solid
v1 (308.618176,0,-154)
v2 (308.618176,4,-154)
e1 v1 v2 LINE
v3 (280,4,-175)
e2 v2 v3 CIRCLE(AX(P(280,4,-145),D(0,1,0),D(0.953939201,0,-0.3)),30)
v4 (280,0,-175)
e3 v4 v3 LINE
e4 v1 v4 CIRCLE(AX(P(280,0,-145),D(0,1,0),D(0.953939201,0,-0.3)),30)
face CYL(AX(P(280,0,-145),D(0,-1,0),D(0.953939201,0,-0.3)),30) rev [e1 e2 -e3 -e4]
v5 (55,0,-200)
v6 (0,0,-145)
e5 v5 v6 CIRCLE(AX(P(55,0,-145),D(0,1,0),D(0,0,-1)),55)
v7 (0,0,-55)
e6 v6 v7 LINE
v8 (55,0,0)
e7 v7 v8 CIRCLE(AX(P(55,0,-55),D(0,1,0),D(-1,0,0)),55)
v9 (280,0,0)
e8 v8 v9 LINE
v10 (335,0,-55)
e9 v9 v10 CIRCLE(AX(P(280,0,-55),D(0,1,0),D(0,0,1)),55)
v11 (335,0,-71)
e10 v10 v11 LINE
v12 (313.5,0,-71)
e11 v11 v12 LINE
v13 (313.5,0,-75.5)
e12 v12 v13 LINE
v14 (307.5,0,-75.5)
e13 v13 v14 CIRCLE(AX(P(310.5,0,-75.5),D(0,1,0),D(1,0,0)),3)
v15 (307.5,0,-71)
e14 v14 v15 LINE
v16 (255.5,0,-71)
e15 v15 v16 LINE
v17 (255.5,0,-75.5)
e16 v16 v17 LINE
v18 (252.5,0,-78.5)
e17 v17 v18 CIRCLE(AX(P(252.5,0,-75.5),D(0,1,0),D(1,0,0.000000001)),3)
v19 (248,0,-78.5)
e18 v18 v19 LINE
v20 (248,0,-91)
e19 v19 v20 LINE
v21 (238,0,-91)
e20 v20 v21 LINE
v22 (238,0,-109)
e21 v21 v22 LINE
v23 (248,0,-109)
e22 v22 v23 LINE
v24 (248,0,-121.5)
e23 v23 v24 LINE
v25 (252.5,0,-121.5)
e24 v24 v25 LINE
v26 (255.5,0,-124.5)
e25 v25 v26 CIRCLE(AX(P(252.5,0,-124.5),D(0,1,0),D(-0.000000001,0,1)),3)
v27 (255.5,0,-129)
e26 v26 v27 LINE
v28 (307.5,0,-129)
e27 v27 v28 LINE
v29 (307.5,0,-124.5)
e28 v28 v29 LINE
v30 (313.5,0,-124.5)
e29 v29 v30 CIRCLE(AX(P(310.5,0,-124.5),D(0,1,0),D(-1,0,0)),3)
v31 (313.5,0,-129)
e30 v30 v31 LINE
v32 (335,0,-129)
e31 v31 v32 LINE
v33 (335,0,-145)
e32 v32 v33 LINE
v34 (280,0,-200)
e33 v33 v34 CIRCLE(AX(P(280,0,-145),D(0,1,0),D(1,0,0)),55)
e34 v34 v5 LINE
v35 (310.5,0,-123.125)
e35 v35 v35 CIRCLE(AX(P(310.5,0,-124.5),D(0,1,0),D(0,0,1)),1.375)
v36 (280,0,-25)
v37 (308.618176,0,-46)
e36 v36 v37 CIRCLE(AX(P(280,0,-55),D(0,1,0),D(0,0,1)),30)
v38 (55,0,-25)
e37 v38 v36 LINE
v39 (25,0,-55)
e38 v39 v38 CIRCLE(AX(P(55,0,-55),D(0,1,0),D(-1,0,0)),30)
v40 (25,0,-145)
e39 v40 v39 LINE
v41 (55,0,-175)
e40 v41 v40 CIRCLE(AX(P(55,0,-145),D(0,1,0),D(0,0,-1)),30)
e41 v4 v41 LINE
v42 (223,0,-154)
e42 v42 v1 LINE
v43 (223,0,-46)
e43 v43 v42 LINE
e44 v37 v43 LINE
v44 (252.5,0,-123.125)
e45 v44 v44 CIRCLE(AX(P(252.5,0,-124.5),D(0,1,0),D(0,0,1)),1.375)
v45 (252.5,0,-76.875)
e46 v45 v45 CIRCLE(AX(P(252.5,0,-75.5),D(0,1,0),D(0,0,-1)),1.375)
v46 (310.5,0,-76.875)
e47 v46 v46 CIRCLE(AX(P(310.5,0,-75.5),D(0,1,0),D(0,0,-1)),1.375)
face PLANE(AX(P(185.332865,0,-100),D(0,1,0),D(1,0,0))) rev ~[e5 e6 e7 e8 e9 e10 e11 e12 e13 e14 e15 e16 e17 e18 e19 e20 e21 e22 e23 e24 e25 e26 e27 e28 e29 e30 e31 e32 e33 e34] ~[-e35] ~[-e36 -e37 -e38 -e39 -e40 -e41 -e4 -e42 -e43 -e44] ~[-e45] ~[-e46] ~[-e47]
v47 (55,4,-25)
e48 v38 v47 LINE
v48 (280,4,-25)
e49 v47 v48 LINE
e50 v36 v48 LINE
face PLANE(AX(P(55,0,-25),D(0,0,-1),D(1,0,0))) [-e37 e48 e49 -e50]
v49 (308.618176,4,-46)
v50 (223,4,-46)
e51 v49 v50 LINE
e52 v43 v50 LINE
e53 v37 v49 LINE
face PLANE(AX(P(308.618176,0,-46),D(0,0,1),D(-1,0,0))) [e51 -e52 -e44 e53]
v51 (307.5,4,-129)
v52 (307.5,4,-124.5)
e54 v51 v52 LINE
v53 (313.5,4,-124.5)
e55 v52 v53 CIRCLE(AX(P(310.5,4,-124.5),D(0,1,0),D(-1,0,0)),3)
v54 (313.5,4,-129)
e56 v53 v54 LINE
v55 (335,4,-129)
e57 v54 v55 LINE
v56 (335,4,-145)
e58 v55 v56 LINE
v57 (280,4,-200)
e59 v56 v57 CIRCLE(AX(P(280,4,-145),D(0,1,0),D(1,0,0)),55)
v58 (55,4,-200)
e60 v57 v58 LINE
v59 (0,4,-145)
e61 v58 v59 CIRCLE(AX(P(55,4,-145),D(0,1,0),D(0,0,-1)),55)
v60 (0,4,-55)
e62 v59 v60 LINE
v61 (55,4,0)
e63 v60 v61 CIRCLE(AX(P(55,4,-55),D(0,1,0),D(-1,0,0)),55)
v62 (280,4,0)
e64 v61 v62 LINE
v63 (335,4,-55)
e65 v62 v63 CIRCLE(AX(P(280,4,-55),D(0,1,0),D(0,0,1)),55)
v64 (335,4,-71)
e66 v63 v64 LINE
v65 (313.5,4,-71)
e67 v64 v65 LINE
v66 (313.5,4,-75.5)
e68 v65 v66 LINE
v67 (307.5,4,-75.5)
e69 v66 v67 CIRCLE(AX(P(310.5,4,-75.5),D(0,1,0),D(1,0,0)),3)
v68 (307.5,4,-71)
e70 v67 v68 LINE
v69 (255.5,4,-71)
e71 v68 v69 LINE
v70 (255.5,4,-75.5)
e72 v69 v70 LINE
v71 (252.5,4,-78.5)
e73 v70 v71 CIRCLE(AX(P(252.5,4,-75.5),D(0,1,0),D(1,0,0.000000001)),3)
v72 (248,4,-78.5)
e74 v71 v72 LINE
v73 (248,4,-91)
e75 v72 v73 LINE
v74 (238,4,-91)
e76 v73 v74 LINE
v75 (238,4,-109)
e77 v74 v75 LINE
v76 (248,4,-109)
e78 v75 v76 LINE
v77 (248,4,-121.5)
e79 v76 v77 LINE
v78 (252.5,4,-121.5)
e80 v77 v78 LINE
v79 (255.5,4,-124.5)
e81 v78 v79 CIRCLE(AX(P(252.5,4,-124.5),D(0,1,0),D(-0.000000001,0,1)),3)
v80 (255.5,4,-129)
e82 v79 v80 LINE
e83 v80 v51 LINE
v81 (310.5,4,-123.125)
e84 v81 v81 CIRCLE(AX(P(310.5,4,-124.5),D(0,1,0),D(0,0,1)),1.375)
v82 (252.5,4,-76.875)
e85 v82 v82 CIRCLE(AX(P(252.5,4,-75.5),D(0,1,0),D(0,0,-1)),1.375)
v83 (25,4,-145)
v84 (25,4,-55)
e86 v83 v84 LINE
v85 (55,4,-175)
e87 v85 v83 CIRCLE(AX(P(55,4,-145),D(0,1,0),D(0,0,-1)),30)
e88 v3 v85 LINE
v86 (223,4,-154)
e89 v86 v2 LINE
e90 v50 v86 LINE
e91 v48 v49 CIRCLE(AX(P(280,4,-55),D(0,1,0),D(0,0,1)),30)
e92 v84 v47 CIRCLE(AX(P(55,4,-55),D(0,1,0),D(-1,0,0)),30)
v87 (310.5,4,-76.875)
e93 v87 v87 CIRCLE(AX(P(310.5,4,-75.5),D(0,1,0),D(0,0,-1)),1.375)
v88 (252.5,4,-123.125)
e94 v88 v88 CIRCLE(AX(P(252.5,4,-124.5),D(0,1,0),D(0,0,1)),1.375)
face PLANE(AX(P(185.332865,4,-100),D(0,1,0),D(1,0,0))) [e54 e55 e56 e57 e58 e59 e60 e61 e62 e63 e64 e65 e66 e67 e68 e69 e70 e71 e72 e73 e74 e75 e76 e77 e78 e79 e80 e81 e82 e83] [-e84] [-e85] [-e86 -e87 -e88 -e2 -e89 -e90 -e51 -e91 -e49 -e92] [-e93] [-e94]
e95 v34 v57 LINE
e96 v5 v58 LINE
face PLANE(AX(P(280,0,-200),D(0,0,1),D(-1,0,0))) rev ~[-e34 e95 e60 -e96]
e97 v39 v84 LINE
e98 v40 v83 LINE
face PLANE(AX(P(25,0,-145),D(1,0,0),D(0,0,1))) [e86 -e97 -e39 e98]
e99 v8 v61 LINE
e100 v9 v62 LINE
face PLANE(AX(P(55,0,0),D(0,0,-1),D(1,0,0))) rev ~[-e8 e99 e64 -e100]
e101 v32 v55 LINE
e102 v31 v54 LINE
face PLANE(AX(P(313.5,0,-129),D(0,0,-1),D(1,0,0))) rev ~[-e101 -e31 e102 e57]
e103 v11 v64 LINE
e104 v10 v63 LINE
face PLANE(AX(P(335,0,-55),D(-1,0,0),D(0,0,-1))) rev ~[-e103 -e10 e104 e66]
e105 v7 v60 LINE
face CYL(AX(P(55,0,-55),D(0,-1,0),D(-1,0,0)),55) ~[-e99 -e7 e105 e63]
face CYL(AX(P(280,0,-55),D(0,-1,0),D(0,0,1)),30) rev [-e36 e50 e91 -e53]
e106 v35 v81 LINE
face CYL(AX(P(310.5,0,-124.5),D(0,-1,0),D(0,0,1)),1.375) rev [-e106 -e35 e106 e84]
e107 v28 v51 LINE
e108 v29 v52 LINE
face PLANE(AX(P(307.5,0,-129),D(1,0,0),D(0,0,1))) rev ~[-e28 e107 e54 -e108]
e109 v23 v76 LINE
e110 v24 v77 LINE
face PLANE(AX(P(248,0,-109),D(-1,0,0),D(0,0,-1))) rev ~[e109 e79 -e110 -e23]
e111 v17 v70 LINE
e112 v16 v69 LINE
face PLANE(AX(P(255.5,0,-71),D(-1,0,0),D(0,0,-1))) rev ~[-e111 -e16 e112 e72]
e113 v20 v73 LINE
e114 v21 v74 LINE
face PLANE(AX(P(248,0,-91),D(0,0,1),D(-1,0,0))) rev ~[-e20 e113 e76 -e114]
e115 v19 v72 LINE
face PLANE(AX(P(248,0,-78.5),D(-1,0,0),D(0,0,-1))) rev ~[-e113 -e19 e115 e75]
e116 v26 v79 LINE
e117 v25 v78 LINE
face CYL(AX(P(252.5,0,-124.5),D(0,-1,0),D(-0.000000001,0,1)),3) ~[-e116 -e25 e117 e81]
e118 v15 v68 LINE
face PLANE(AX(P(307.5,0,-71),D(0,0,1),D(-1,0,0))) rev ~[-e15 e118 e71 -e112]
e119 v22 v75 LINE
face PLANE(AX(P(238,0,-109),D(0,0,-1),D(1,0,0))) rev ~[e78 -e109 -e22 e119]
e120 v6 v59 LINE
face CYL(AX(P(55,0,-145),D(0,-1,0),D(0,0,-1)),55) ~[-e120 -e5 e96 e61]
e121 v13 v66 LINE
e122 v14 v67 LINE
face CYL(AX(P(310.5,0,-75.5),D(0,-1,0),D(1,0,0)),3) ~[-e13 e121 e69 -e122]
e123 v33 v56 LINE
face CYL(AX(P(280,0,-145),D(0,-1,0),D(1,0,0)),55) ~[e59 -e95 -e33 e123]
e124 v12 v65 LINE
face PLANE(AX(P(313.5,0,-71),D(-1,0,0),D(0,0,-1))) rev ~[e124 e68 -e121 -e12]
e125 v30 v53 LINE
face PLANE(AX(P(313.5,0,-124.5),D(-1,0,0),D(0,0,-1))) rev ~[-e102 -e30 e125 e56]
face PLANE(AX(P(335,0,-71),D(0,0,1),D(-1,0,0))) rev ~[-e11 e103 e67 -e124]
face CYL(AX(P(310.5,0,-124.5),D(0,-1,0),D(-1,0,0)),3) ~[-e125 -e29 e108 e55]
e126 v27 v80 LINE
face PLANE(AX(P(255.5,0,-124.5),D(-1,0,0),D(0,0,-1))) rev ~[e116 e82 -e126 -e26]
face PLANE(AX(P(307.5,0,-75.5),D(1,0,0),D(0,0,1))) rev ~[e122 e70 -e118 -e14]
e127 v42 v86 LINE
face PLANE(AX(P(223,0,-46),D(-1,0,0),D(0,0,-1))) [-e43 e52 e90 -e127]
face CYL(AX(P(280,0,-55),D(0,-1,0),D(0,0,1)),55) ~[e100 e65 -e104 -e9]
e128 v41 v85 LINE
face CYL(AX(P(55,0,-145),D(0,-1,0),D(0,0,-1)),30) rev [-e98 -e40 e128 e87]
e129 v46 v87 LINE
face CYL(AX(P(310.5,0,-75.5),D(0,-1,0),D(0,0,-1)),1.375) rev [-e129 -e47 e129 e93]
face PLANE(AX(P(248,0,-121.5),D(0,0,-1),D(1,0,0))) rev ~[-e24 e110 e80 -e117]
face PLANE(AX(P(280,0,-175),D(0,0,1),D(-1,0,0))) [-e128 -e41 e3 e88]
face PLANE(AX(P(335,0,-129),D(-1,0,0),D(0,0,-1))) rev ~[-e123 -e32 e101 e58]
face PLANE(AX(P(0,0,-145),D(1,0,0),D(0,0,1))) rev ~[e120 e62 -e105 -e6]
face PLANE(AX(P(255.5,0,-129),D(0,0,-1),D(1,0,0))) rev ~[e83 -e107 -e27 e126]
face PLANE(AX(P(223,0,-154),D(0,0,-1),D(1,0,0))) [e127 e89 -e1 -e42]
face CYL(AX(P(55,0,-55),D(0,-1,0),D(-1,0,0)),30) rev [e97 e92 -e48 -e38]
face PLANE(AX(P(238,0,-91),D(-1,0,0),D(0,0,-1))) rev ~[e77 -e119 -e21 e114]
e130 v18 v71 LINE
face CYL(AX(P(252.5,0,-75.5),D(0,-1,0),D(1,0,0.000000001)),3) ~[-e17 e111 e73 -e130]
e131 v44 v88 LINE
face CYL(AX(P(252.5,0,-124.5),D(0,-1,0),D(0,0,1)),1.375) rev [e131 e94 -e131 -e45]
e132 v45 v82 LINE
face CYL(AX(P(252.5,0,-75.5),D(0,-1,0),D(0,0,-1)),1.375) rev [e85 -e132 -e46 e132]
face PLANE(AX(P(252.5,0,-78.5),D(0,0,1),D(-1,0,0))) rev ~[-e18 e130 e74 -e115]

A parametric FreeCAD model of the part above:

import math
import FreeCAD as App
import Part
import Sketcher

V = App.Vector
Q = App.Units.Quantity

doc = App.newDocument("Part")
params = doc.addObject("Spreadsheet::Sheet", "Params")
for row, (alias, value) in enumerate([
    ("sketch1_radius", "55 mm"),
    ("sketch1_radius2", "3 mm"),
    ("sketch1_radius3", "30 mm"),
    ("sketch1_diameter", "2.75 mm"),
    ("sketch1_width", "225 mm"),
    ("pad1_length", "4 mm"),
], start=1):
    params.set(f"A{row}", alias)
    params.set(f"B{row}", "=" + value)
    params.setAlias(f"B{row}", alias)

body = doc.addObject("PartDesign::Body", "Body")

# Sketch on XZ plane
sketch1 = body.newObject("Sketcher::SketchObject", "Sketch")
sketch1.AttachmentSupport = (doc.getObject("XZ_Plane"), [""])
sketch1.MapMode = "FlatFace"
sketch1.addGeometry(Part.LineSegment(V(55, 0, 0), V(280, 0, 0)), False)
sketch1.addGeometry(Part.ArcOfCircle(Part.Circle(V(280, -55, 0), V(0, 0, 1), 55), math.radians(0), math.radians(90)), False)
sketch1.addGeometry(Part.LineSegment(V(335, -55, 0), V(335, -71, 0)), False)
sketch1.addGeometry(Part.LineSegment(V(335, -71, 0), V(313.5, -71, 0)), False)
sketch1.addGeometry(Part.LineSegment(V(313.5, -71, 0), V(313.5, -75.5, 0)), False)
sketch1.addGeometry(Part.ArcOfCircle(Part.Circle(V(310.5, -75.5, 0), V(0, 0, 1), 3), math.radians(180), math.radians(360)), False)
sketch1.addGeometry(Part.LineSegment(V(307.5, -75.5, 0), V(307.5, -71, 0)), False)
sketch1.addGeometry(Part.LineSegment(V(307.5, -71, 0), V(255.5, -71, 0)), False)
sketch1.addGeometry(Part.LineSegment(V(255.5, -71, 0), V(255.5, -75.5, 0)), False)
sketch1.addGeometry(Part.ArcOfCircle(Part.Circle(V(252.5, -75.5, 0), V(0, 0, 1), 3), math.radians(-90), math.radians(0)), False)
sketch1.addGeometry(Part.LineSegment(V(252.5, -78.5, 0), V(248, -78.5, 0)), False)
sketch1.addGeometry(Part.LineSegment(V(248, -78.5, 0), V(248, -91, 0)), False)
sketch1.addGeometry(Part.LineSegment(V(248, -91, 0), V(238, -91, 0)), False)
sketch1.addGeometry(Part.LineSegment(V(238, -91, 0), V(238, -109, 0)), False)
sketch1.addGeometry(Part.LineSegment(V(238, -109, 0), V(248, -109, 0)), False)
sketch1.addGeometry(Part.LineSegment(V(248, -109, 0), V(248, -121.5, 0)), False)
sketch1.addGeometry(Part.LineSegment(V(248, -121.5, 0), V(252.5, -121.5, 0)), False)
sketch1.addGeometry(Part.ArcOfCircle(Part.Circle(V(252.5, -124.5, 0), V(0, 0, 1), 3), math.radians(0), math.radians(90)), False)
sketch1.addGeometry(Part.LineSegment(V(255.5, -124.5, 0), V(255.5, -129, 0)), False)
sketch1.addGeometry(Part.LineSegment(V(255.5, -129, 0), V(307.5, -129, 0)), False)
sketch1.addGeometry(Part.LineSegment(V(307.5, -129, 0), V(307.5, -124.5, 0)), False)
sketch1.addGeometry(Part.ArcOfCircle(Part.Circle(V(310.5, -124.5, 0), V(0, 0, 1), 3), math.radians(0), math.radians(180)), False)
sketch1.addGeometry(Part.LineSegment(V(313.5, -124.5, 0), V(313.5, -129, 0)), False)
sketch1.addGeometry(Part.LineSegment(V(313.5, -129, 0), V(335, -129, 0)), False)
sketch1.addGeometry(Part.LineSegment(V(335, -129, 0), V(335, -145, 0)), False)
sketch1.addGeometry(Part.ArcOfCircle(Part.Circle(V(280, -145, 0), V(0, 0, 1), 55), math.radians(-90), math.radians(0)), False)
sketch1.addGeometry(Part.LineSegment(V(280, -200, 0), V(55, -200, 0)), False)
sketch1.addGeometry(Part.ArcOfCircle(Part.Circle(V(55, -145, 0), V(0, 0, 1), 55), math.radians(-180), math.radians(-90)), False)
sketch1.addGeometry(Part.LineSegment(V(0, -145, 0), V(0, -55, 0)), False)
sketch1.addGeometry(Part.ArcOfCircle(Part.Circle(V(55, -55, 0), V(0, 0, 1), 55), math.radians(90), math.radians(180)), False)
sketch1.addGeometry(Part.Circle(V(252.5, -75.5, 0), V(0, 0, 1), 1.4), False)
sketch1.addGeometry(Part.Circle(V(310.5, -75.5, 0), V(0, 0, 1), 1.4), False)
sketch1.addGeometry(Part.LineSegment(V(280, -25, 0), V(55, -25, 0)), False)
sketch1.addGeometry(Part.ArcOfCircle(Part.Circle(V(55, -55, 0), V(0, 0, 1), 30), math.radians(90), math.radians(180)), False)
sketch1.addGeometry(Part.LineSegment(V(25, -55, 0), V(25, -145, 0)), False)
sketch1.addGeometry(Part.ArcOfCircle(Part.Circle(V(55, -145, 0), V(0, 0, 1), 30), math.radians(180), math.radians(270)), False)
sketch1.addGeometry(Part.LineSegment(V(55, -175, 0), V(280, -175, 0)), False)
sketch1.addGeometry(Part.ArcOfCircle(Part.Circle(V(280, -145, 0), V(0, 0, 1), 30), math.radians(-90), math.radians(-17)), False)
sketch1.addGeometry(Part.LineSegment(V(308.6, -154, 0), V(223, -154, 0)), False)
sketch1.addGeometry(Part.LineSegment(V(223, -154, 0), V(223, -46, 0)), False)
sketch1.addGeometry(Part.LineSegment(V(223, -46, 0), V(308.6, -46, 0)), False)
sketch1.addGeometry(Part.ArcOfCircle(Part.Circle(V(280, -55, 0), V(0, 0, 1), 30), math.radians(17), math.radians(90)), False)
sketch1.addGeometry(Part.Circle(V(252.5, -124.5, 0), V(0, 0, 1), 1.4), False)
sketch1.addGeometry(Part.Circle(V(310.5, -124.5, 0), V(0, 0, 1), 1.4), False)
sketch1.addConstraint(Sketcher.Constraint("Tangent", 0, 2, 1, 2))
sketch1.addConstraint(Sketcher.Constraint("Tangent", 1, 1, 2, 1))
sketch1.addConstraint(Sketcher.Constraint("Coincident", 2, 2, 3, 1))
sketch1.addConstraint(Sketcher.Constraint("Coincident", 3, 2, 4, 1))
sketch1.addConstraint(Sketcher.Constraint("Tangent", 4, 2, 5, 2))
sketch1.addConstraint(Sketcher.Constraint("Tangent", 5, 1, 6, 1))
sketch1.addConstraint(Sketcher.Constraint("Coincident", 6, 2, 7, 1))
sketch1.addConstraint(Sketcher.Constraint("Coincident", 7, 2, 8, 1))
sketch1.addConstraint(Sketcher.Constraint("Tangent", 8, 2, 9, 2))
sketch1.addConstraint(Sketcher.Constraint("Tangent", 9, 1, 10, 1))
sketch1.addConstraint(Sketcher.Constraint("Coincident", 10, 2, 11, 1))
sketch1.addConstraint(Sketcher.Constraint("Coincident", 11, 2, 12, 1))
sketch1.addConstraint(Sketcher.Constraint("Coincident", 12, 2, 13, 1))
sketch1.addConstraint(Sketcher.Constraint("Coincident", 13, 2, 14, 1))
sketch1.addConstraint(Sketcher.Constraint("Coincident", 14, 2, 15, 1))
sketch1.addConstraint(Sketcher.Constraint("Coincident", 15, 2, 16, 1))
sketch1.addConstraint(Sketcher.Constraint("Tangent", 16, 2, 17, 2))
sketch1.addConstraint(Sketcher.Constraint("Tangent", 17, 1, 18, 1))
sketch1.addConstraint(Sketcher.Constraint("Coincident", 18, 2, 19, 1))
sketch1.addConstraint(Sketcher.Constraint("Coincident", 19, 2, 20, 1))
sketch1.addConstraint(Sketcher.Constraint("Tangent", 20, 2, 21, 2))
sketch1.addConstraint(Sketcher.Constraint("Tangent", 21, 1, 22, 1))
sketch1.addConstraint(Sketcher.Constraint("Coincident", 22, 2, 23, 1))
sketch1.addConstraint(Sketcher.Constraint("Coincident", 23, 2, 24, 1))
sketch1.addConstraint(Sketcher.Constraint("Tangent", 24, 2, 25, 2))
sketch1.addConstraint(Sketcher.Constraint("Tangent", 25, 1, 26, 1))
sketch1.addConstraint(Sketcher.Constraint("Tangent", 26, 2, 27, 2))
sketch1.addConstraint(Sketcher.Constraint("Tangent", 27, 1, 28, 1))
sketch1.addConstraint(Sketcher.Constraint("Tangent", 28, 2, 29, 2))
sketch1.addConstraint(Sketcher.Constraint("Tangent", 29, 1, 0, 1))
sketch1.addConstraint(Sketcher.Constraint("Tangent", 32, 2, 33, 1))
sketch1.addConstraint(Sketcher.Constraint("Tangent", 33, 2, 34, 1))
sketch1.addConstraint(Sketcher.Constraint("Tangent", 34, 2, 35, 1))
sketch1.addConstraint(Sketcher.Constraint("Tangent", 35, 2, 36, 1))
sketch1.addConstraint(Sketcher.Constraint("Tangent", 36, 2, 37, 1))
sketch1.addConstraint(Sketcher.Constraint("Coincident", 37, 2, 38, 1))
sketch1.addConstraint(Sketcher.Constraint("Coincident", 38, 2, 39, 1))
sketch1.addConstraint(Sketcher.Constraint("Coincident", 39, 2, 40, 1))
sketch1.addConstraint(Sketcher.Constraint("Coincident", 40, 2, 41, 1))
sketch1.addConstraint(Sketcher.Constraint("Tangent", 41, 2, 32, 1))
sketch1.addConstraint(Sketcher.Constraint("Horizontal", 0))
sketch1.addConstraint(Sketcher.Constraint("Vertical", 2))
sketch1.addConstraint(Sketcher.Constraint("Horizontal", 3))
sketch1.addConstraint(Sketcher.Constraint("Vertical", 4))
sketch1.addConstraint(Sketcher.Constraint("Vertical", 6))
sketch1.addConstraint(Sketcher.Constraint("Horizontal", 7))
sketch1.addConstraint(Sketcher.Constraint("Vertical", 8))
sketch1.addConstraint(Sketcher.Constraint("Horizontal", 10))
sketch1.addConstraint(Sketcher.Constraint("Vertical", 11))
sketch1.addConstraint(Sketcher.Constraint("Horizontal", 12))
sketch1.addConstraint(Sketcher.Constraint("Vertical", 13))
sketch1.addConstraint(Sketcher.Constraint("Horizontal", 14))
sketch1.addConstraint(Sketcher.Constraint("Vertical", 15))
sketch1.addConstraint(Sketcher.Constraint("Horizontal", 16))
sketch1.addConstraint(Sketcher.Constraint("Vertical", 18))
sketch1.addConstraint(Sketcher.Constraint("Horizontal", 19))
sketch1.addConstraint(Sketcher.Constraint("Vertical", 20))
sketch1.addConstraint(Sketcher.Constraint("Vertical", 22))
sketch1.addConstraint(Sketcher.Constraint("Horizontal", 23))
sketch1.addConstraint(Sketcher.Constraint("Vertical", 24))
sketch1.addConstraint(Sketcher.Constraint("Horizontal", 26))
sketch1.addConstraint(Sketcher.Constraint("Vertical", 28))
sketch1.addConstraint(Sketcher.Constraint("Horizontal", 32))
sketch1.addConstraint(Sketcher.Constraint("Vertical", 34))
sketch1.addConstraint(Sketcher.Constraint("Horizontal", 36))
sketch1.addConstraint(Sketcher.Constraint("Horizontal", 38))
sketch1.addConstraint(Sketcher.Constraint("Vertical", 39))
sketch1.addConstraint(Sketcher.Constraint("Horizontal", 40))
sketch1.addConstraint(Sketcher.Constraint("Coincident", 30, 3, 9, 3))
sketch1.addConstraint(Sketcher.Constraint("Coincident", 31, 3, 5, 3))
sketch1.addConstraint(Sketcher.Constraint("Coincident", 33, 3, 29, 3))
sketch1.addConstraint(Sketcher.Constraint("Coincident", 35, 3, 27, 3))
sketch1.addConstraint(Sketcher.Constraint("Coincident", 37, 3, 25, 3))
sketch1.addConstraint(Sketcher.Constraint("Coincident", 41, 3, 1, 3))
sketch1.addConstraint(Sketcher.Constraint("Coincident", 42, 3, 17, 3))
sketch1.addConstraint(Sketcher.Constraint("Coincident", 43, 3, 21, 3))
sketch1.addConstraint(Sketcher.Constraint("Equal", 5, 9))
sketch1.addConstraint(Sketcher.Constraint("Equal", 9, 17))
sketch1.addConstraint(Sketcher.Constraint("Equal", 17, 21))
sketch1.addConstraint(Sketcher.Constraint("Equal", 1, 25))
sketch1.addConstraint(Sketcher.Constraint("Equal", 25, 27))
sketch1.addConstraint(Sketcher.Constraint("Equal", 27, 29))
sketch1.addConstraint(Sketcher.Constraint("Equal", 30, 31))
sketch1.addConstraint(Sketcher.Constraint("Equal", 31, 42))
sketch1.addConstraint(Sketcher.Constraint("Equal", 42, 43))
sketch1.addConstraint(Sketcher.Constraint("PointOnObject", 0, 2, -1))
sketch1.addConstraint(Sketcher.Constraint("PointOnObject", 27, 1, -2))
sketch1.addConstraint(Sketcher.Constraint("Horizontal", 5, 3, 9, 3))
sketch1.addConstraint(Sketcher.Constraint("Horizontal", 17, 3, 21, 3))
sketch1.addConstraint(Sketcher.Constraint("Horizontal", 3, 2, 6, 2))
sketch1.addConstraint(Sketcher.Constraint("Horizontal", 19, 2, 22, 2))
sketch1.addConstraint(Sketcher.Constraint("Vertical", 9, 3, 17, 3))
sketch1.addConstraint(Sketcher.Constraint("Vertical", 5, 3, 21, 3))
sketch1.addConstraint(Sketcher.Constraint("Vertical", 1, 3, 25, 3))
sketch1.addConstraint(Sketcher.Constraint("Vertical", 11, 2, 14, 2))
sketch1.addConstraint(Sketcher.Constraint("Vertical", 37, 2, 40, 2))
sketch1.addConstraint(Sketcher.Constraint("Equal", 16, 4))
sketch1.addConstraint(Sketcher.Constraint("Equal", 11, 15))
sketch1.addConstraint(Sketcher.Constraint("Equal", 8, 18))
sketch1.addConstraint(Sketcher.Constraint("Equal", 2, 24))
sketch1.addConstraint(Sketcher.Constraint("Radius", 1, Q("55 mm")))
sketch1.addConstraint(Sketcher.Constraint("Radius", 5, Q("3 mm")))
sketch1.addConstraint(Sketcher.Constraint("Radius", 33, Q("30 mm")))
sketch1.addConstraint(Sketcher.Constraint("Diameter", 30, Q("2.75 mm")))
sketch1.addConstraint(Sketcher.Constraint("DistanceX", 0, 1, 0, 2, Q("225 mm")))
sketch1.addConstraint(Sketcher.Constraint("DistanceX", 7, 2, 7, 1, Q("52 mm")))
sketch1.addConstraint(Sketcher.Constraint("DistanceX", 12, 2, 12, 1, Q("10 mm")))
sketch1.addConstraint(Sketcher.Constraint("DistanceY", 2, 2, 2, 1, Q("16 mm")))
sketch1.addConstraint(Sketcher.Constraint("DistanceY", 13, 2, 13, 1, Q("18 mm")))
sketch1.addConstraint(Sketcher.Constraint("DistanceY", 28, 1, 28, 2, Q("90 mm")))
sketch1.addConstraint(Sketcher.Constraint("DistanceY", 39, 1, 39, 2, Q("108 mm")))
sketch1.addConstraint(Sketcher.Constraint("DistanceX", 3, 2, 3, 1, Q("21.5 mm")))
sketch1.addConstraint(Sketcher.Constraint("DistanceX", 10, 2, 10, 1, Q("4.5 mm")))
sketch1.addConstraint(Sketcher.Constraint("DistanceX", -1, 1, 38, 2, Q("223 mm")))
sketch1.setExpression("Constraints[100]", "Params.sketch1_radius")
sketch1.setExpression("Constraints[101]", "Params.sketch1_radius2")
sketch1.setExpression("Constraints[102]", "Params.sketch1_radius3")
sketch1.setExpression("Constraints[103]", "Params.sketch1_diameter")
sketch1.setExpression("Constraints[104]", "Params.sketch1_width")
pad1 = body.newObject("PartDesign::Pad", "Pad")
pad1.Profile = sketch1
pad1.setExpression("Length", "Params.pad1_length")
pad1.Reversed = True

doc.recompute()
